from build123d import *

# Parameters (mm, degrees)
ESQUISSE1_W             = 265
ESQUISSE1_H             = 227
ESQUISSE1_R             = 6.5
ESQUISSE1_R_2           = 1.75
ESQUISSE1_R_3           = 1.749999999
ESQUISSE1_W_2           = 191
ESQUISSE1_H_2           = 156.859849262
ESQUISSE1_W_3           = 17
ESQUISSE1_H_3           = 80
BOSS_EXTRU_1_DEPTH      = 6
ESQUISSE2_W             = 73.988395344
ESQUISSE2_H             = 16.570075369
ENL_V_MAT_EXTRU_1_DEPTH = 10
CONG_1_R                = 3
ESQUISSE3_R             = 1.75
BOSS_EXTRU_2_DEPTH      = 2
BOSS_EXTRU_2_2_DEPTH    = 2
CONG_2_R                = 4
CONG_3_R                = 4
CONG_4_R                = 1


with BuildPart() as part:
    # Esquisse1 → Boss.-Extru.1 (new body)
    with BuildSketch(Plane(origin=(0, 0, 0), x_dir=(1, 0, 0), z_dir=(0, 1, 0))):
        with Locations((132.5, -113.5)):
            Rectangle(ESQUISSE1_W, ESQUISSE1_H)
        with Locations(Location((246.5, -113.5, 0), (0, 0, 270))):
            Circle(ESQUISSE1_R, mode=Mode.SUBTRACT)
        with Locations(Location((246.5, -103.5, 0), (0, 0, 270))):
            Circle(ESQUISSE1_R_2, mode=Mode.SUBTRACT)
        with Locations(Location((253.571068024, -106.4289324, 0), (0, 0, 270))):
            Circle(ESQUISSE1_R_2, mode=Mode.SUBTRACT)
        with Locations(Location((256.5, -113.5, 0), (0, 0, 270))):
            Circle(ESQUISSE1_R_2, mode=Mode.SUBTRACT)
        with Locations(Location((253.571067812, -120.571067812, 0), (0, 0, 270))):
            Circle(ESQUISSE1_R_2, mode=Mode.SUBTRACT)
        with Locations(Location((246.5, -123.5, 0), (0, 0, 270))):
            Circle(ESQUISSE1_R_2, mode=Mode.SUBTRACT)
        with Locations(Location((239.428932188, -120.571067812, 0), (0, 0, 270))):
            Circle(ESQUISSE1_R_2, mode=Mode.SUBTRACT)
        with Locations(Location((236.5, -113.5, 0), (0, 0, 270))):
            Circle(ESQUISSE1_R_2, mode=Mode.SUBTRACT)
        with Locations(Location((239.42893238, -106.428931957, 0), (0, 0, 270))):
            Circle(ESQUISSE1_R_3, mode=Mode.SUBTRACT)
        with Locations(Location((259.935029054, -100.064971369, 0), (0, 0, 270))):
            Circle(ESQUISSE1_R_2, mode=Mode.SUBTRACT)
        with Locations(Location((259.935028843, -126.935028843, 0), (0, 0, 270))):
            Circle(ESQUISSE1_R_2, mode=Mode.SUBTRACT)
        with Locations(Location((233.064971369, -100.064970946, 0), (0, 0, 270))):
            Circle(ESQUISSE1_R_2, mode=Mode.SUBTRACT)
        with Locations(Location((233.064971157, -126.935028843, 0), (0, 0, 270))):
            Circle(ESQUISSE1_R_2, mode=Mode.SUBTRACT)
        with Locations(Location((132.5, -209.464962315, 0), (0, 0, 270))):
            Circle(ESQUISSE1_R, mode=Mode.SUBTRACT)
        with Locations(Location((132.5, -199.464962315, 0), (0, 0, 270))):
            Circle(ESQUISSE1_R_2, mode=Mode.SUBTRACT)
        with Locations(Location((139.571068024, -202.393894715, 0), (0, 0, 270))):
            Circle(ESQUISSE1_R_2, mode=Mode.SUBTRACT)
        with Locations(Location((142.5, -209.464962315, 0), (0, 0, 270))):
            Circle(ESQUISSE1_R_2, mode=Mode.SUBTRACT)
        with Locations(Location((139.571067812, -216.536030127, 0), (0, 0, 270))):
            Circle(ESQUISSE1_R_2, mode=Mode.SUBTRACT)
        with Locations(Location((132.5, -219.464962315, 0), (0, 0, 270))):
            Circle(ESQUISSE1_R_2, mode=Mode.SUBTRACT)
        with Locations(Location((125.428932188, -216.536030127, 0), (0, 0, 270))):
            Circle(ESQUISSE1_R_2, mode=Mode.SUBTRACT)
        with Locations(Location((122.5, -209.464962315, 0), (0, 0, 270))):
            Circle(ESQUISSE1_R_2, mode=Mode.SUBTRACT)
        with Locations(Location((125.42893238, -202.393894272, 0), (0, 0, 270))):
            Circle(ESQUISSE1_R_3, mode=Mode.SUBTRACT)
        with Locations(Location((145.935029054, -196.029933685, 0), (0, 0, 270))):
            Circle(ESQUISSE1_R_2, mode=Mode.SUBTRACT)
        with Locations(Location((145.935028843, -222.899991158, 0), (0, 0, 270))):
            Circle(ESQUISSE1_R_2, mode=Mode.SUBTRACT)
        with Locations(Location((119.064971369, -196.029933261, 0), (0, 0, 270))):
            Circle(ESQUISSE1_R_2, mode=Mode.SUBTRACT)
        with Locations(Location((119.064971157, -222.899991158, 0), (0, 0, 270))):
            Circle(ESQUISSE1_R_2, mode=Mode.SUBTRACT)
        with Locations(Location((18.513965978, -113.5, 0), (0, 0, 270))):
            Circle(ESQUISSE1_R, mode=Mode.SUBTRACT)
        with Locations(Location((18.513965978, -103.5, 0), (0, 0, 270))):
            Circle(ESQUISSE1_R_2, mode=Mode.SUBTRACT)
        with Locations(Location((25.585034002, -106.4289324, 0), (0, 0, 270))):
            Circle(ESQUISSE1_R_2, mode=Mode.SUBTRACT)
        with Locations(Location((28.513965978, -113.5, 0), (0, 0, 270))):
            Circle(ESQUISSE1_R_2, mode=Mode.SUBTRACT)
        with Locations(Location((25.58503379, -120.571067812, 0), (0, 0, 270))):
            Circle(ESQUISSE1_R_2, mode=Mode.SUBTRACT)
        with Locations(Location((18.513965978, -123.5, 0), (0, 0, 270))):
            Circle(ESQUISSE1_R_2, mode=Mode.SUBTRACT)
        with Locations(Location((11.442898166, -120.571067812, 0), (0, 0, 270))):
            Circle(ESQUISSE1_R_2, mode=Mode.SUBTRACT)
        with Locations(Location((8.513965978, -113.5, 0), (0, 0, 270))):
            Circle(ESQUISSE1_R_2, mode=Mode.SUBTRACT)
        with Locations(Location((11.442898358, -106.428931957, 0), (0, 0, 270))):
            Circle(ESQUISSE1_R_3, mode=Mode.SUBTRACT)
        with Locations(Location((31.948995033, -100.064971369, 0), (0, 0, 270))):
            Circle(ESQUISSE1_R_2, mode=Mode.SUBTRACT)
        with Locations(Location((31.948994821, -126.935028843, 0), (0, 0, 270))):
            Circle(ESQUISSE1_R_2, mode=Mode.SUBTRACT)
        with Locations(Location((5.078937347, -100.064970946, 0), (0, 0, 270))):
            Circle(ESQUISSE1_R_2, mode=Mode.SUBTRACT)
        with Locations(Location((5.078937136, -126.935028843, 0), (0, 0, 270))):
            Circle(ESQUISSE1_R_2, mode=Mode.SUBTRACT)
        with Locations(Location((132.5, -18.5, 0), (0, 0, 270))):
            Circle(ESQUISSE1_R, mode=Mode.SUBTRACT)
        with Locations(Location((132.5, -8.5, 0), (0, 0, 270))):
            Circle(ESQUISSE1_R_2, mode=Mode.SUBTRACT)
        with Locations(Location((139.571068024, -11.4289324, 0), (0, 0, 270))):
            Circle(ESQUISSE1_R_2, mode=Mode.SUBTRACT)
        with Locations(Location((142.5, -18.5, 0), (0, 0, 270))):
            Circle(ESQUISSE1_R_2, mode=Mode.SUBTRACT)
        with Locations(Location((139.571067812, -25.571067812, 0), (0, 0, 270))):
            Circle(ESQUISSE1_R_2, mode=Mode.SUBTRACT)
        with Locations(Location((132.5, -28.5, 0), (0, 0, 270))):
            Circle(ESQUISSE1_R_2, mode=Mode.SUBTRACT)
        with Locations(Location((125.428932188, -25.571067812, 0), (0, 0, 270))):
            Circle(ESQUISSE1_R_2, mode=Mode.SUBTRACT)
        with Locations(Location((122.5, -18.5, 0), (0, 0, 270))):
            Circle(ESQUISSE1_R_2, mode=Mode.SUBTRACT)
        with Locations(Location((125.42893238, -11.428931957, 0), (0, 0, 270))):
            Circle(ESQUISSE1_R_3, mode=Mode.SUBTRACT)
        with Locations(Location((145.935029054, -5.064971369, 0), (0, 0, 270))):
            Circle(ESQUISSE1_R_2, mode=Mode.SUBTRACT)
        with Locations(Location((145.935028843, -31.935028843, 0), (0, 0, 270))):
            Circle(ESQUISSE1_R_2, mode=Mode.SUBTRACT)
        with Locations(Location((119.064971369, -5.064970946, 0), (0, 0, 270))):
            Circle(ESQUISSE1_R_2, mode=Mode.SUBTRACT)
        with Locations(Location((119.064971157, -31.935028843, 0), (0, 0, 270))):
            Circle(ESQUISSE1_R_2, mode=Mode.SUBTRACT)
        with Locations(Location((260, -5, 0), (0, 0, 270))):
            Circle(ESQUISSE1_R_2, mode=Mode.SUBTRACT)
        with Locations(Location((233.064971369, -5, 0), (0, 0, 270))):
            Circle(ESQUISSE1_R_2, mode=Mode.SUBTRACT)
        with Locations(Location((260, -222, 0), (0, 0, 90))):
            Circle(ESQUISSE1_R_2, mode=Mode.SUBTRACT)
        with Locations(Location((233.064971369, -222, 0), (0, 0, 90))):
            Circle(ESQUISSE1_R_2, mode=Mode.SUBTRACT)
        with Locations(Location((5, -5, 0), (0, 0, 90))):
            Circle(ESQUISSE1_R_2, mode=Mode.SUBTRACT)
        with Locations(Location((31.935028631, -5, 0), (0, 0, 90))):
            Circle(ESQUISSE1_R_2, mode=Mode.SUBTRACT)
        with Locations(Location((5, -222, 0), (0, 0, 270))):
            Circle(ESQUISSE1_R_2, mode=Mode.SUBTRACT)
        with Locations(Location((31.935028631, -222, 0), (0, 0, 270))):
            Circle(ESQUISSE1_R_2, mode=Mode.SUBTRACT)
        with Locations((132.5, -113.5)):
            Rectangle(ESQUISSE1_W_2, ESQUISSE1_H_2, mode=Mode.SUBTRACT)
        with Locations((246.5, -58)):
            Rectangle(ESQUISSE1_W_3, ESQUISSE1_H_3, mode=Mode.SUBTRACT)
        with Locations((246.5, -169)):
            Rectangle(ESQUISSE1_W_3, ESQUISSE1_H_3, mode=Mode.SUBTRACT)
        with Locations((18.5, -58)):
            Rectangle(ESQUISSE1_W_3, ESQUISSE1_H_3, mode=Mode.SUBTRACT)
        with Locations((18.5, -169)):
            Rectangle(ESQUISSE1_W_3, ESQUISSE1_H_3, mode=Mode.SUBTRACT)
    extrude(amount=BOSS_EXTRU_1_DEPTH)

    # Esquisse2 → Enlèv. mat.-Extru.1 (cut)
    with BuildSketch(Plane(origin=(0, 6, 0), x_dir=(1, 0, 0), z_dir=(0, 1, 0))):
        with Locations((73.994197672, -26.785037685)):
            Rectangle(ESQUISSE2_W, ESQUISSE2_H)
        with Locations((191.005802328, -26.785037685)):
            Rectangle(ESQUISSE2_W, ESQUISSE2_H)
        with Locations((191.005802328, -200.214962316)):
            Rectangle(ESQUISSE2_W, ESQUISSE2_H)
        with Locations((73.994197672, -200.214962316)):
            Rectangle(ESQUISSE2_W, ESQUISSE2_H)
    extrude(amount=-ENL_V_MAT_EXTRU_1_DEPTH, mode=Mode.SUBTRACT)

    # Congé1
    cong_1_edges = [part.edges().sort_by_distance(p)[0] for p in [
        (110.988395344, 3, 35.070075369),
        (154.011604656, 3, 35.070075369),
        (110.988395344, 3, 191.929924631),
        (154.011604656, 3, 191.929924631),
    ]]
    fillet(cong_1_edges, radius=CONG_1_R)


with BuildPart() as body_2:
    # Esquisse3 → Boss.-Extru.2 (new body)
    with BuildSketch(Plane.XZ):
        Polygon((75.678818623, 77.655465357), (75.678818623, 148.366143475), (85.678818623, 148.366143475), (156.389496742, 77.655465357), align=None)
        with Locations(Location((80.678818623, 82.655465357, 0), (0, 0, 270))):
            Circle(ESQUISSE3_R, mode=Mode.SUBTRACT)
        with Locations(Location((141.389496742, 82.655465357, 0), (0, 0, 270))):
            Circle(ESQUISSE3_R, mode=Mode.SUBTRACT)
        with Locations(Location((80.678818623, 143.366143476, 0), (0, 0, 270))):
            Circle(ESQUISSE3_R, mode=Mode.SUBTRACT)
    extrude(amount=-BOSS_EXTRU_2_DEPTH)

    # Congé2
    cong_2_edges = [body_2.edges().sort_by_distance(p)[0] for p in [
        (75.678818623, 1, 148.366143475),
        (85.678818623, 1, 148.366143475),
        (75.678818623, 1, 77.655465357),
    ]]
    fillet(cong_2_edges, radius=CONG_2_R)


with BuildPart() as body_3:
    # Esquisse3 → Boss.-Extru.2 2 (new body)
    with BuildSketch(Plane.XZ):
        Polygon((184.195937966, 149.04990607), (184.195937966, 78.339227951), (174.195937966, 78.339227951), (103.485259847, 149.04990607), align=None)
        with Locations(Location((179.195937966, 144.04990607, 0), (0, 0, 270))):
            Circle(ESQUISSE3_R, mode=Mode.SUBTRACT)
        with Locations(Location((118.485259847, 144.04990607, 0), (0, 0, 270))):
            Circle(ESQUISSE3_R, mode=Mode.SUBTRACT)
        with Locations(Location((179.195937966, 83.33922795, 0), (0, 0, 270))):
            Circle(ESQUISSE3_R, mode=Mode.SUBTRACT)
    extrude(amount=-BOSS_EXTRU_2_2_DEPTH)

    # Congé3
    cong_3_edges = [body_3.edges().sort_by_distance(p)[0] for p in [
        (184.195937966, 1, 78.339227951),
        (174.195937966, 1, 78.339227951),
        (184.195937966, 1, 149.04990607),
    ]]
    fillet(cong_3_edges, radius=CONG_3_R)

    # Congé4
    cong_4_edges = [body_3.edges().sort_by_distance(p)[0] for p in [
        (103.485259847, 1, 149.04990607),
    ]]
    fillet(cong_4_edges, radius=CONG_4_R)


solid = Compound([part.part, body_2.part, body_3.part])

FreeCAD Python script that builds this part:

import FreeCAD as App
import Part
import Sketcher
Q = App.Units.Quantity


def edges_at(feature, points):
    """Names of the edges that pass closest to the given points."""
    edges = feature.Shape.Edges
    near = lambda p: min(range(len(edges)), key=lambda i: edges[i].distToShape(Part.Vertex(*p))[0])
    return sorted({f"Edge{near(p) + 1}" for p in points})

doc = App.newDocument("Part")
body = doc.addObject("PartDesign::Body", "Body")

sketch1 = body.newObject("Sketcher::SketchObject", "Sketch")
sketch1.AttachmentSupport = (doc.getObject("XZ_Plane"), [""])
sketch1.MapMode = "FlatFace"
sketch1.addGeometry(Part.LineSegment(App.Vector(0, 0, 0), App.Vector(0, 227, 0)), False)
sketch1.addGeometry(Part.LineSegment(App.Vector(0, 227, 0), App.Vector(265, 227, 0)), False)
sketch1.addGeometry(Part.LineSegment(App.Vector(265, 227, 0), App.Vector(265, 0, 0)), False)
sketch1.addGeometry(Part.LineSegment(App.Vector(265, 0, 0), App.Vector(0, 0, 0)), False)
sketch1.addGeometry(Part.Circle(App.Vector(5, 222, 0), App.Vector(0, 0, 1), 1.8), False)
sketch1.addGeometry(Part.Circle(App.Vector(31.9, 222, 0), App.Vector(0, 0, 1), 1.8), False)
sketch1.addGeometry(Part.Circle(App.Vector(119.1, 222.9, 0), App.Vector(0, 0, 1), 1.8), False)
sketch1.addGeometry(Part.Circle(App.Vector(125.4, 216.5, 0), App.Vector(0, 0, 1), 1.8), False)
sketch1.addGeometry(Part.Circle(App.Vector(122.5, 209.5, 0), App.Vector(0, 0, 1), 1.8), False)
sketch1.addGeometry(Part.Circle(App.Vector(125.4, 202.4, 0), App.Vector(0, 0, 1), 1.7), False)
sketch1.addGeometry(Part.Circle(App.Vector(119.1, 196, 0), App.Vector(0, 0, 1), 1.8), False)
sketch1.addGeometry(Part.LineSegment(App.Vector(27, 209, 0), App.Vector(10, 209, 0)), False)
sketch1.addGeometry(Part.LineSegment(App.Vector(10, 209, 0), App.Vector(10, 129, 0)), False)
sketch1.addGeometry(Part.LineSegment(App.Vector(10, 129, 0), App.Vector(27, 129, 0)), False)
sketch1.addGeometry(Part.LineSegment(App.Vector(27, 129, 0), App.Vector(27, 209, 0)), False)
sketch1.addGeometry(Part.Circle(App.Vector(5.1, 126.9, 0), App.Vector(0, 0, 1), 1.8), False)
sketch1.addGeometry(Part.Circle(App.Vector(18.5, 123.5, 0), App.Vector(0, 0, 1), 1.8), False)
sketch1.addGeometry(Part.Circle(App.Vector(11.4, 120.6, 0), App.Vector(0, 0, 1), 1.8), False)
sketch1.addGeometry(Part.Circle(App.Vector(31.9, 126.9, 0), App.Vector(0, 0, 1), 1.8), False)
sketch1.addGeometry(Part.Circle(App.Vector(25.6, 120.6, 0), App.Vector(0, 0, 1), 1.8), False)
sketch1.addGeometry(Part.Circle(App.Vector(132.5, 219.5, 0), App.Vector(0, 0, 1), 1.8), False)
sketch1.addGeometry(Part.Circle(App.Vector(145.9, 222.9, 0), App.Vector(0, 0, 1), 1.8), False)
sketch1.addGeometry(Part.Circle(App.Vector(139.6, 216.5, 0), App.Vector(0, 0, 1), 1.8), False)
sketch1.addGeometry(Part.Circle(App.Vector(132.5, 209.5, 0), App.Vector(0, 0, 1), 6.5), False)
sketch1.addGeometry(Part.Circle(App.Vector(142.5, 209.5, 0), App.Vector(0, 0, 1), 1.8), False)
sketch1.addGeometry(Part.Circle(App.Vector(139.6, 202.4, 0), App.Vector(0, 0, 1), 1.8), False)
sketch1.addGeometry(Part.Circle(App.Vector(132.5, 199.5, 0), App.Vector(0, 0, 1), 1.8), False)
sketch1.addGeometry(Part.Circle(App.Vector(145.9, 196, 0), App.Vector(0, 0, 1), 1.8), False)
sketch1.addGeometry(Part.Circle(App.Vector(233.1, 222, 0), App.Vector(0, 0, 1), 1.8), False)
sketch1.addGeometry(Part.Circle(App.Vector(260, 222, 0), App.Vector(0, 0, 1), 1.8), False)
sketch1.addGeometry(Part.LineSegment(App.Vector(255, 209, 0), App.Vector(238, 209, 0)), False)
sketch1.addGeometry(Part.LineSegment(App.Vector(238, 209, 0), App.Vector(238, 129, 0)), False)
sketch1.addGeometry(Part.LineSegment(App.Vector(238, 129, 0), App.Vector(255, 129, 0)), False)
sketch1.addGeometry(Part.LineSegment(App.Vector(255, 129, 0), App.Vector(255, 209, 0)), False)
sketch1.addGeometry(Part.Circle(App.Vector(233.1, 126.9, 0), App.Vector(0, 0, 1), 1.8), False)
sketch1.addGeometry(Part.Circle(App.Vector(239.4, 120.6, 0), App.Vector(0, 0, 1), 1.8), False)
sketch1.addGeometry(Part.Circle(App.Vector(246.5, 123.5, 0), App.Vector(0, 0, 1), 1.8), False)
sketch1.addGeometry(Part.Circle(App.Vector(259.9, 126.9, 0), App.Vector(0, 0, 1), 1.8), False)
sketch1.addGeometry(Part.Circle(App.Vector(253.6, 120.6, 0), App.Vector(0, 0, 1), 1.8), False)
sketch1.addGeometry(Part.Circle(App.Vector(8.5, 113.5, 0), App.Vector(0, 0, 1), 1.8), False)
sketch1.addGeometry(Part.Circle(App.Vector(18.5, 113.5, 0), App.Vector(0, 0, 1), 6.5), False)
sketch1.addGeometry(Part.Circle(App.Vector(11.4, 106.4, 0), App.Vector(0, 0, 1), 1.7), False)
sketch1.addGeometry(Part.Circle(App.Vector(18.5, 103.5, 0), App.Vector(0, 0, 1), 1.8), False)
sketch1.addGeometry(Part.Circle(App.Vector(28.5, 113.5, 0), App.Vector(0, 0, 1), 1.8), False)
sketch1.addGeometry(Part.Circle(App.Vector(25.6, 106.4, 0), App.Vector(0, 0, 1), 1.8), False)
sketch1.addGeometry(Part.Circle(App.Vector(5.1, 100.1, 0), App.Vector(0, 0, 1), 1.8), False)
sketch1.addGeometry(Part.Circle(App.Vector(31.9, 100.1, 0), App.Vector(0, 0, 1), 1.8), False)
sketch1.addGeometry(Part.LineSegment(App.Vector(27, 98, 0), App.Vector(10, 98, 0)), False)
sketch1.addGeometry(Part.LineSegment(App.Vector(10, 98, 0), App.Vector(10, 18, 0)), False)
sketch1.addGeometry(Part.LineSegment(App.Vector(10, 18, 0), App.Vector(27, 18, 0)), False)
sketch1.addGeometry(Part.LineSegment(App.Vector(27, 18, 0), App.Vector(27, 98, 0)), False)
sketch1.addGeometry(Part.Circle(App.Vector(5, 5, 0), App.Vector(0, 0, 1), 1.8), False)
sketch1.addGeometry(Part.Circle(App.Vector(31.9, 5, 0), App.Vector(0, 0, 1), 1.8), False)
sketch1.addGeometry(Part.Circle(App.Vector(119.1, 31.9, 0), App.Vector(0, 0, 1), 1.8), False)
sketch1.addGeometry(Part.Circle(App.Vector(125.4, 25.6, 0), App.Vector(0, 0, 1), 1.8), False)
sketch1.addGeometry(Part.Circle(App.Vector(122.5, 18.5, 0), App.Vector(0, 0, 1), 1.8), False)
sketch1.addGeometry(Part.Circle(App.Vector(125.4, 11.4, 0), App.Vector(0, 0, 1), 1.7), False)
sketch1.addGeometry(Part.Circle(App.Vector(119.1, 5.1, 0), App.Vector(0, 0, 1), 1.8), False)
sketch1.addGeometry(Part.LineSegment(App.Vector(228, 191.9, 0), App.Vector(37, 191.9, 0)), False)
sketch1.addGeometry(Part.LineSegment(App.Vector(37, 191.9, 0), App.Vector(37, 35.1, 0)), False)
sketch1.addGeometry(Part.LineSegment(App.Vector(37, 35.1, 0), App.Vector(228, 35.1, 0)), False)
sketch1.addGeometry(Part.LineSegment(App.Vector(228, 35.1, 0), App.Vector(228, 191.9, 0)), False)
sketch1.addGeometry(Part.Circle(App.Vector(236.5, 113.5, 0), App.Vector(0, 0, 1), 1.8), False)
sketch1.addGeometry(Part.Circle(App.Vector(239.4, 106.4, 0), App.Vector(0, 0, 1), 1.7), False)
sketch1.addGeometry(Part.Circle(App.Vector(246.5, 113.5, 0), App.Vector(0, 0, 1), 6.5), False)
sketch1.addGeometry(Part.Circle(App.Vector(256.5, 113.5, 0), App.Vector(0, 0, 1), 1.8), False)
sketch1.addGeometry(Part.Circle(App.Vector(253.6, 106.4, 0), App.Vector(0, 0, 1), 1.8), False)
sketch1.addGeometry(Part.Circle(App.Vector(246.5, 103.5, 0), App.Vector(0, 0, 1), 1.8), False)
sketch1.addGeometry(Part.Circle(App.Vector(233.1, 100.1, 0), App.Vector(0, 0, 1), 1.8), False)
sketch1.addGeometry(Part.Circle(App.Vector(259.9, 100.1, 0), App.Vector(0, 0, 1), 1.8), False)
sketch1.addGeometry(Part.Circle(App.Vector(145.9, 31.9, 0), App.Vector(0, 0, 1), 1.8), False)
sketch1.addGeometry(Part.Circle(App.Vector(132.5, 28.5, 0), App.Vector(0, 0, 1), 1.8), False)
sketch1.addGeometry(Part.Circle(App.Vector(139.6, 25.6, 0), App.Vector(0, 0, 1), 1.8), False)
sketch1.addGeometry(Part.Circle(App.Vector(132.5, 18.5, 0), App.Vector(0, 0, 1), 6.5), False)
sketch1.addGeometry(Part.Circle(App.Vector(142.5, 18.5, 0), App.Vector(0, 0, 1), 1.8), False)
sketch1.addGeometry(Part.Circle(App.Vector(139.6, 11.4, 0), App.Vector(0, 0, 1), 1.8), False)
sketch1.addGeometry(Part.Circle(App.Vector(132.5, 8.5, 0), App.Vector(0, 0, 1), 1.8), False)
sketch1.addGeometry(Part.Circle(App.Vector(145.9, 5.1, 0), App.Vector(0, 0, 1), 1.8), False)
sketch1.addGeometry(Part.LineSegment(App.Vector(255, 98, 0), App.Vector(238, 98, 0)), False)
sketch1.addGeometry(Part.LineSegment(App.Vector(238, 98, 0), App.Vector(238, 18, 0)), False)
sketch1.addGeometry(Part.LineSegment(App.Vector(238, 18, 0), App.Vector(255, 18, 0)), False)
sketch1.addGeometry(Part.LineSegment(App.Vector(255, 18, 0), App.Vector(255, 98, 0)), False)
sketch1.addGeometry(Part.Circle(App.Vector(233.1, 5, 0), App.Vector(0, 0, 1), 1.8), False)
sketch1.addGeometry(Part.Circle(App.Vector(260, 5, 0), App.Vector(0, 0, 1), 1.8), False)
sketch1.addConstraint(Sketcher.Constraint("Coincident", 0, 2, 1, 1))
sketch1.addConstraint(Sketcher.Constraint("Coincident", 1, 2, 2, 1))
sketch1.addConstraint(Sketcher.Constraint("Coincident", 2, 2, 3, 1))
sketch1.addConstraint(Sketcher.Constraint("Coincident", 3, 2, 0, 1))
sketch1.addConstraint(Sketcher.Constraint("Coincident", 11, 2, 12, 1))
sketch1.addConstraint(Sketcher.Constraint("Coincident", 12, 2, 13, 1))
sketch1.addConstraint(Sketcher.Constraint("Coincident", 13, 2, 14, 1))
sketch1.addConstraint(Sketcher.Constraint("Coincident", 14, 2, 11, 1))
sketch1.addConstraint(Sketcher.Constraint("Coincident", 30, 2, 31, 1))
sketch1.addConstraint(Sketcher.Constraint("Coincident", 31, 2, 32, 1))
sketch1.addConstraint(Sketcher.Constraint("Coincident", 32, 2, 33, 1))
sketch1.addConstraint(Sketcher.Constraint("Coincident", 33, 2, 30, 1))
sketch1.addConstraint(Sketcher.Constraint("Coincident", 47, 2, 48, 1))
sketch1.addConstraint(Sketcher.Constraint("Coincident", 48, 2, 49, 1))
sketch1.addConstraint(Sketcher.Constraint("Coincident", 49, 2, 50, 1))
sketch1.addConstraint(Sketcher.Constraint("Coincident", 50, 2, 47, 1))
sketch1.addConstraint(Sketcher.Constraint("Coincident", 58, 2, 59, 1))
sketch1.addConstraint(Sketcher.Constraint("Coincident", 59, 2, 60, 1))
sketch1.addConstraint(Sketcher.Constraint("Coincident", 60, 2, 61, 1))
sketch1.addConstraint(Sketcher.Constraint("Coincident", 61, 2, 58, 1))
sketch1.addConstraint(Sketcher.Constraint("Coincident", 78, 2, 79, 1))
sketch1.addConstraint(Sketcher.Constraint("Coincident", 79, 2, 80, 1))
sketch1.addConstraint(Sketcher.Constraint("Coincident", 80, 2, 81, 1))
sketch1.addConstraint(Sketcher.Constraint("Coincident", 81, 2, 78, 1))
sketch1.addConstraint(Sketcher.Constraint("Vertical", 0))
sketch1.addConstraint(Sketcher.Constraint("Horizontal", 1))
sketch1.addConstraint(Sketcher.Constraint("Vertical", 2))
sketch1.addConstraint(Sketcher.Constraint("Horizontal", 3))
sketch1.addConstraint(Sketcher.Constraint("Horizontal", 11))
sketch1.addConstraint(Sketcher.Constraint("Vertical", 12))
sketch1.addConstraint(Sketcher.Constraint("Horizontal", 13))
sketch1.addConstraint(Sketcher.Constraint("Vertical", 14))
sketch1.addConstraint(Sketcher.Constraint("Horizontal", 30))
sketch1.addConstraint(Sketcher.Constraint("Vertical", 31))
sketch1.addConstraint(Sketcher.Constraint("Horizontal", 32))
sketch1.addConstraint(Sketcher.Constraint("Vertical", 33))
sketch1.addConstraint(Sketcher.Constraint("Horizontal", 47))
sketch1.addConstraint(Sketcher.Constraint("Vertical", 48))
sketch1.addConstraint(Sketcher.Constraint("Horizontal", 49))
sketch1.addConstraint(Sketcher.Constraint("Vertical", 50))
sketch1.addConstraint(Sketcher.Constraint("Horizontal", 58))
sketch1.addConstraint(Sketcher.Constraint("Vertical", 59))
sketch1.addConstraint(Sketcher.Constraint("Horizontal", 60))
sketch1.addConstraint(Sketcher.Constraint("Vertical", 61))
sketch1.addConstraint(Sketcher.Constraint("Horizontal", 78))
sketch1.addConstraint(Sketcher.Constraint("Vertical", 79))
sketch1.addConstraint(Sketcher.Constraint("Horizontal", 80))
sketch1.addConstraint(Sketcher.Constraint("Vertical", 81))
sketch1.addConstraint(Sketcher.Constraint("Coincident", 3, 2, -1, 1))
sketch1.addConstraint(Sketcher.Constraint("Equal", 4, 5))
sketch1.addConstraint(Sketcher.Constraint("Equal", 5, 6))
sketch1.addConstraint(Sketcher.Constraint("Equal", 6, 7))
sketch1.addConstraint(Sketcher.Constraint("Equal", 7, 8))
sketch1.addConstraint(Sketcher.Constraint("Equal", 8, 9))
sketch1.addConstraint(Sketcher.Constraint("Equal", 9, 10))
sketch1.addConstraint(Sketcher.Constraint("Equal", 10, 15))
sketch1.addConstraint(Sketcher.Constraint("Equal", 15, 16))
sketch1.addConstraint(Sketcher.Constraint("Equal", 16, 17))
sketch1.addConstraint(Sketcher.Constraint("Equal", 17, 18))
sketch1.addConstraint(Sketcher.Constraint("Equal", 18, 19))
sketch1.addConstraint(Sketcher.Constraint("Equal", 19, 20))
sketch1.addConstraint(Sketcher.Constraint("Equal", 20, 21))
sketch1.addConstraint(Sketcher.Constraint("Equal", 21, 22))
sketch1.addConstraint(Sketcher.Constraint("Equal", 22, 24))
sketch1.addConstraint(Sketcher.Constraint("Equal", 24, 25))
sketch1.addConstraint(Sketcher.Constraint("Equal", 25, 26))
sketch1.addConstraint(Sketcher.Constraint("Equal", 26, 27))
sketch1.addConstraint(Sketcher.Constraint("Equal", 27, 28))
sketch1.addConstraint(Sketcher.Constraint("Equal", 28, 29))
sketch1.addConstraint(Sketcher.Constraint("Equal", 29, 34))
sketch1.addConstraint(Sketcher.Constraint("Equal", 34, 35))
sketch1.addConstraint(Sketcher.Constraint("Equal", 35, 36))
sketch1.addConstraint(Sketcher.Constraint("Equal", 36, 37))
sketch1.addConstraint(Sketcher.Constraint("Equal", 37, 38))
sketch1.addConstraint(Sketcher.Constraint("Equal", 38, 39))
sketch1.addConstraint(Sketcher.Constraint("Equal", 23, 40))
sketch1.addConstraint(Sketcher.Constraint("Equal", 39, 41))
sketch1.addConstraint(Sketcher.Constraint("Equal", 41, 42))
sketch1.addConstraint(Sketcher.Constraint("Equal", 42, 43))
sketch1.addConstraint(Sketcher.Constraint("Equal", 43, 44))
sketch1.addConstraint(Sketcher.Constraint("Equal", 44, 45))
sketch1.addConstraint(Sketcher.Constraint("Equal", 45, 46))
sketch1.addConstraint(Sketcher.Constraint("Equal", 46, 51))
sketch1.addConstraint(Sketcher.Constraint("Equal", 51, 52))
sketch1.addConstraint(Sketcher.Constraint("Equal", 52, 53))
sketch1.addConstraint(Sketcher.Constraint("Equal", 53, 54))
sketch1.addConstraint(Sketcher.Constraint("Equal", 54, 55))
sketch1.addConstraint(Sketcher.Constraint("Equal", 55, 56))
sketch1.addConstraint(Sketcher.Constraint("Equal", 56, 57))
sketch1.addConstraint(Sketcher.Constraint("Equal", 57, 62))
sketch1.addConstraint(Sketcher.Constraint("Equal", 62, 63))
sketch1.addConstraint(Sketcher.Constraint("Equal", 40, 64))
sketch1.addConstraint(Sketcher.Constraint("Equal", 63, 65))
sketch1.addConstraint(Sketcher.Constraint("Equal", 65, 66))
sketch1.addConstraint(Sketcher.Constraint("Equal", 66, 67))
sketch1.addConstraint(Sketcher.Constraint("Equal", 67, 68))
sketch1.addConstraint(Sketcher.Constraint("Equal", 68, 69))
sketch1.addConstraint(Sketcher.Constraint("Equal", 69, 70))
sketch1.addConstraint(Sketcher.Constraint("Equal", 70, 71))
sketch1.addConstraint(Sketcher.Constraint("Equal", 71, 72))
sketch1.addConstraint(Sketcher.Constraint("Equal", 64, 73))
sketch1.addConstraint(Sketcher.Constraint("Equal", 72, 74))
sketch1.addConstraint(Sketcher.Constraint("Equal", 74, 75))
sketch1.addConstraint(Sketcher.Constraint("Equal", 75, 76))
sketch1.addConstraint(Sketcher.Constraint("Equal", 76, 77))
sketch1.addConstraint(Sketcher.Constraint("Equal", 77, 82))
sketch1.addConstraint(Sketcher.Constraint("Equal", 82, 83))
sketch1.addConstraint(Sketcher.Constraint("Horizontal", 4, 3, 5, 3))
sketch1.addConstraint(Sketcher.Constraint("Horizontal", 15, 3, 18, 3))
sketch1.addConstraint(Sketcher.Constraint("Horizontal", 17, 3, 19, 3))
sketch1.addConstraint(Sketcher.Constraint("Horizontal", 6, 3, 21, 3))
sketch1.addConstraint(Sketcher.Constraint("Horizontal", 7, 3, 22, 3))
sketch1.addConstraint(Sketcher.Constraint("Horizontal", 8, 3, 23, 3))
sketch1.addConstraint(Sketcher.Constraint("Horizontal", 23, 3, 24, 3))
sketch1.addConstraint(Sketcher.Constraint("Horizontal", 9, 3, 25, 3))
sketch1.addConstraint(Sketcher.Constraint("Horizontal", 10, 3, 27, 3))
sketch1.addConstraint(Sketcher.Constraint("Horizontal", 5, 3, 28, 3))
sketch1.addConstraint(Sketcher.Constraint("Horizontal", 28, 3, 29, 3))
sketch1.addConstraint(Sketcher.Constraint("Horizontal", 18, 3, 34, 3))
sketch1.addConstraint(Sketcher.Constraint("Horizontal", 19, 3, 35, 3))
sketch1.addConstraint(Sketcher.Constraint("Horizontal", 16, 3, 36, 3))
sketch1.addConstraint(Sketcher.Constraint("Horizontal", 34, 3, 37, 3))
sketch1.addConstraint(Sketcher.Constraint("Horizontal", 35, 3, 38, 3))
sketch1.addConstraint(Sketcher.Constraint("Horizontal", 39, 3, 40, 3))
sketch1.addConstraint(Sketcher.Constraint("Horizontal", 40, 3, 43, 3))
sketch1.addConstraint(Sketcher.Constraint("Horizontal", 41, 3, 44, 3))
sketch1.addConstraint(Sketcher.Constraint("Horizontal", 45, 3, 46, 3))
sketch1.addConstraint(Sketcher.Constraint("Horizontal", 51, 3, 52, 3))
sketch1.addConstraint(Sketcher.Constraint("Horizontal", 43, 3, 62, 3))
sketch1.addConstraint(Sketcher.Constraint("Horizontal", 44, 3, 63, 3))
sketch1.addConstraint(Sketcher.Constraint("Horizontal", 62, 3, 64, 3))
sketch1.addConstraint(Sketcher.Constraint("Horizontal", 64, 3, 65, 3))
sketch1.addConstraint(Sketcher.Constraint("Horizontal", 63, 3, 66, 3))
sketch1.addConstraint(Sketcher.Constraint("Horizontal", 42, 3, 67, 3))
sketch1.addConstraint(Sketcher.Constraint("Horizontal", 46, 3, 68, 3))
sketch1.addConstraint(Sketcher.Constraint("Horizontal", 68, 3, 69, 3))
sketch1.addConstraint(Sketcher.Constraint("Horizontal", 53, 3, 70, 3))
sketch1.addConstraint(Sketcher.Constraint("Horizontal", 54, 3, 72, 3))
sketch1.addConstraint(Sketcher.Constraint("Horizontal", 55, 3, 73, 3))
sketch1.addConstraint(Sketcher.Constraint("Horizontal", 73, 3, 74, 3))
sketch1.addConstraint(Sketcher.Constraint("Horizontal", 56, 3, 75, 3))
sketch1.addConstraint(Sketcher.Constraint("Horizontal", 57, 3, 77, 3))
sketch1.addConstraint(Sketcher.Constraint("Horizontal", 52, 3, 82, 3))
sketch1.addConstraint(Sketcher.Constraint("Horizontal", 82, 3, 83, 3))
sketch1.addConstraint(Sketcher.Constraint("Horizontal", 14, 2, 30, 2))
sketch1.addConstraint(Sketcher.Constraint("Horizontal", 13, 2, 31, 2))
sketch1.addConstraint(Sketcher.Constraint("Horizontal", 50, 2, 78, 2))
sketch1.addConstraint(Sketcher.Constraint("Horizontal", 49, 2, 79, 2))
sketch1.addConstraint(Sketcher.Constraint("Vertical", 7, 3, 9, 3))
sketch1.addConstraint(Sketcher.Constraint("Vertical", 6, 3, 10, 3))
sketch1.addConstraint(Sketcher.Constraint("Vertical", 20, 3, 23, 3))
sketch1.addConstraint(Sketcher.Constraint("Vertical", 22, 3, 25, 3))
sketch1.addConstraint(Sketcher.Constraint("Vertical", 23, 3, 26, 3))
sketch1.addConstraint(Sketcher.Constraint("Vertical", 21, 3, 27, 3))
sketch1.addConstraint(Sketcher.Constraint("Vertical", 28, 3, 34, 3))
sketch1.addConstraint(Sketcher.Constraint("Vertical", 16, 3, 40, 3))
sketch1.addConstraint(Sketcher.Constraint("Vertical", 17, 3, 41, 3))
sketch1.addConstraint(Sketcher.Constraint("Vertical", 40, 3, 42, 3))
sketch1.addConstraint(Sketcher.Constraint("Vertical", 19, 3, 44, 3))
sketch1.addConstraint(Sketcher.Constraint("Vertical", 15, 3, 45, 3))
sketch1.addConstraint(Sketcher.Constraint("Vertical", 18, 3, 46, 3))
sketch1.addConstraint(Sketcher.Constraint("Vertical", 4, 3, 51, 3))
sketch1.addConstraint(Sketcher.Constraint("Vertical", 5, 3, 52, 3))
sketch1.addConstraint(Sketcher.Constraint("Vertical", 10, 3, 53, 3))
sketch1.addConstraint(Sketcher.Constraint("Vertical", 9, 3, 54, 3))
sketch1.addConstraint(Sketcher.Constraint("Vertical", 8, 3, 55, 3))
sketch1.addConstraint(Sketcher.Constraint("Vertical", 54, 3, 56, 3))
sketch1.addConstraint(Sketcher.Constraint("Vertical", 53, 3, 57, 3))
sketch1.addConstraint(Sketcher.Constraint("Vertical", 35, 3, 63, 3))
sketch1.addConstraint(Sketcher.Constraint("Vertical", 36, 3, 64, 3))
sketch1.addConstraint(Sketcher.Constraint("Vertical", 38, 3, 66, 3))
sketch1.addConstraint(Sketcher.Constraint("Vertical", 64, 3, 67, 3))
sketch1.addConstraint(Sketcher.Constraint("Vertical", 34, 3, 68, 3))
sketch1.addConstraint(Sketcher.Constraint("Vertical", 37, 3, 69, 3))
sketch1.addConstraint(Sketcher.Constraint("Vertical", 27, 3, 70, 3))
sketch1.addConstraint(Sketcher.Constraint("Vertical", 26, 3, 71, 3))
sketch1.addConstraint(Sketcher.Constraint("Vertical", 25, 3, 72, 3))
sketch1.addConstraint(Sketcher.Constraint("Vertical", 71, 3, 73, 3))
sketch1.addConstraint(Sketcher.Constraint("Vertical", 24, 3, 74, 3))
sketch1.addConstraint(Sketcher.Constraint("Vertical", 72, 3, 75, 3))
sketch1.addConstraint(Sketcher.Constraint("Vertical", 73, 3, 76, 3))
sketch1.addConstraint(Sketcher.Constraint("Vertical", 70, 3, 77, 3))
sketch1.addConstraint(Sketcher.Constraint("Vertical", 68, 3, 82, 3))
sketch1.addConstraint(Sketcher.Constraint("Vertical", 29, 3, 83, 3))
sketch1.addConstraint(Sketcher.Constraint("Vertical", 12, 2, 47, 2))
sketch1.addConstraint(Sketcher.Constraint("Vertical", 14, 2, 49, 2))
sketch1.addConstraint(Sketcher.Constraint("Vertical", 31, 2, 78, 2))
sketch1.addConstraint(Sketcher.Constraint("Vertical", 33, 2, 80, 2))
sketch1.addConstraint(Sketcher.Constraint("Equal", 13, 30))
sketch1.addConstraint(Sketcher.Constraint("Equal", 33, 48))
sketch1.addConstraint(Sketcher.Constraint("Diameter", 23, 13.0))
sketch1.addConstraint(Sketcher.Constraint("Diameter", 4, 3.5))
sketch1.addConstraint(Sketcher.Constraint("DistanceX", 1, 1, 1, 2, 265.0))
sketch1.addConstraint(Sketcher.Constraint("DistanceX", 11, 2, 11, 1, 17.0))
sketch1.addConstraint(Sketcher.Constraint("DistanceX", 58, 2, 58, 1, 191.0))
sketch1.addConstraint(Sketcher.Constraint("DistanceY", 0, 1, 0, 2, 227.0))
sketch1.addConstraint(Sketcher.Constraint("DistanceY", 12, 2, 12, 1, 80.0))
sketch1.addConstraint(Sketcher.Constraint("DistanceX", -1, 1, 4, 3, 5.0))
sketch1.addConstraint(Sketcher.Constraint("DistanceY", -1, 1, 4, 3, 222.0))
sketch1.addConstraint(Sketcher.Constraint("DistanceX", -1, 1, 29, 3, 260.0))
sketch1.addConstraint(Sketcher.Constraint("DistanceY", -1, 1, 51, 3, 5.0))
sketch1.addConstraint(Sketcher.Constraint("DistanceX", -1, 1, 11, 2, 10.0))
sketch1.addConstraint(Sketcher.Constraint("DistanceY", -1, 1, 11, 2, 209.0))
sketch1.addConstraint(Sketcher.Constraint("DistanceX", -1, 1, 30, 2, 238.0))
sketch1.addConstraint(Sketcher.Constraint("DistanceY", -1, 1, 47, 2, 98.0))
sketch1.addConstraint(Sketcher.Constraint("DistanceX", -1, 1, 58, 2, 37.0))
sketch1.addConstraint(Sketcher.Constraint("DistanceX", -1, 1, 8, 3, 122.5))
sketch1.addConstraint(Sketcher.Constraint("DistanceY", -1, 1, 16, 3, 123.5))
sketch1.addConstraint(Sketcher.Constraint("DistanceX", -1, 1, 20, 3, 132.5))
sketch1.addConstraint(Sketcher.Constraint("DistanceX", -1, 1, 24, 3, 142.5))
sketch1.addConstraint(Sketcher.Constraint("DistanceX", -1, 1, 36, 3, 246.5))
sketch1.addConstraint(Sketcher.Constraint("DistanceY", -1, 1, 39, 3, 113.5))
sketch1.addConstraint(Sketcher.Constraint("DistanceY", -1, 1, 42, 3, 103.5))
sketch1.addConstraint(Sketcher.Constraint("DistanceY", -1, 1, 55, 3, 18.5))
sketch1.addConstraint(Sketcher.Constraint("DistanceX", -1, 1, 62, 3, 236.5))
sketch1.addConstraint(Sketcher.Constraint("DistanceX", -1, 1, 65, 3, 256.5))
sketch1.addConstraint(Sketcher.Constraint("DistanceY", -1, 1, 71, 3, 28.5))
sketch1.addConstraint(Sketcher.Constraint("DistanceY", -1, 1, 76, 3, 8.5))
sketch1.addConstraint(Sketcher.Constraint("DistanceY", 59, 2, 59, 1, 156.859849))
sketch1.addConstraint(Sketcher.Constraint("DistanceX", -1, 1, 17, 3, 11.442898))
sketch1.addConstraint(Sketcher.Constraint("DistanceX", -1, 1, 5, 3, 31.935029))
sketch1.addConstraint(Sketcher.Constraint("DistanceX", -1, 1, 6, 3, 119.064971))
sketch1.addConstraint(Sketcher.Constraint("DistanceY", -1, 1, 6, 3, 222.899991))
sketch1.addConstraint(Sketcher.Constraint("DistanceY", -1, 1, 7, 3, 216.53603))
sketch1.addConstraint(Sketcher.Constraint("DistanceY", -1, 1, 15, 3, 126.935029))
sketch1.addConstraint(Sketcher.Constraint("DistanceX", -1, 1, 21, 3, 145.935029))
sketch1.addConstraint(Sketcher.Constraint("DistanceX", -1, 1, 25, 3, 139.571068))
sketch1.addConstraint(Sketcher.Constraint("DistanceX", -1, 1, 28, 3, 233.064971))
sketch1.addConstraint(Sketcher.Constraint("DistanceX", -1, 1, 37, 3, 259.935029))
sketch1.addConstraint(Sketcher.Constraint("DistanceY", -1, 1, 41, 3, 106.428932))
sketch1.addConstraint(Sketcher.Constraint("DistanceY", -1, 1, 45, 3, 100.064971))
sketch1.addConstraint(Sketcher.Constraint("DistanceY", -1, 1, 53, 3, 31.935029))
sketch1.addConstraint(Sketcher.Constraint("DistanceY", -1, 1, 56, 3, 11.428932))
sketch1.addConstraint(Sketcher.Constraint("DistanceY", -1, 1, 57, 3, 5.064971))
sketch1.addConstraint(Sketcher.Constraint("DistanceX", -1, 1, 66, 3, 253.571068))
sketch1.addConstraint(Sketcher.Constraint("DistanceX", -1, 1, 7, 3, 125.428932))
sketch1.addConstraint(Sketcher.Constraint("DistanceY", -1, 1, 8, 3, 209.464962))
sketch1.addConstraint(Sketcher.Constraint("DistanceY", -1, 1, 9, 3, 202.393894))
sketch1.addConstraint(Sketcher.Constraint("DistanceY", -1, 1, 10, 3, 196.029933))
sketch1.addConstraint(Sketcher.Constraint("DistanceX", -1, 1, 15, 3, 5.078937))
sketch1.addConstraint(Sketcher.Constraint("DistanceX", -1, 1, 16, 3, 18.513966))
sketch1.addConstraint(Sketcher.Constraint("DistanceY", -1, 1, 17, 3, 120.571068))
sketch1.addConstraint(Sketcher.Constraint("DistanceX", -1, 1, 18, 3, 31.948995))
sketch1.addConstraint(Sketcher.Constraint("DistanceX", -1, 1, 19, 3, 25.585034))
sketch1.addConstraint(Sketcher.Constraint("DistanceY", -1, 1, 20, 3, 219.464962))
sketch1.addConstraint(Sketcher.Constraint("DistanceY", -1, 1, 26, 3, 199.464962))
sketch1.addConstraint(Sketcher.Constraint("DistanceX", -1, 1, 35, 3, 239.428932))
sketch1.addConstraint(Sketcher.Constraint("DistanceX", -1, 1, 39, 3, 8.513966))
sketch1.addConstraint(Sketcher.Constraint("DistanceX", -1, 1, 43, 3, 28.513966))
sketch1.addConstraint(Sketcher.Constraint("DistanceY", -1, 1, 54, 3, 25.571068))
sketch1.addConstraint(Sketcher.Constraint("DistanceY", -1, 1, 58, 2, 191.929925))
pad1 = body.newObject("PartDesign::Pad", "Pad")
pad1.Profile = sketch1
pad1.Length = 6
pad1.Reversed = True

sketch2 = body.newObject("Sketcher::SketchObject", "Sketch001")
sketch2.AttachmentSupport = (doc.getObject("XZ_Plane"), [""])
sketch2.MapMode = "FlatFace"
sketch2.AttachmentOffset = App.Placement(App.Vector(0, 0, -6), App.Rotation())
sketch2.addGeometry(Part.LineSegment(App.Vector(37, 18, 0), App.Vector(37, 35, 0)), False)
sketch2.addGeometry(Part.LineSegment(App.Vector(37, 35, 0), App.Vector(111, 35, 0)), False)
sketch2.addGeometry(Part.LineSegment(App.Vector(111, 35, 0), App.Vector(111, 18, 0)), False)
sketch2.addGeometry(Part.LineSegment(App.Vector(111, 18, 0), App.Vector(37, 18, 0)), False)
sketch2.addGeometry(Part.LineSegment(App.Vector(154, 18, 0), App.Vector(154, 35, 0)), False)
sketch2.addGeometry(Part.LineSegment(App.Vector(154, 35, 0), App.Vector(228, 35, 0)), False)
sketch2.addGeometry(Part.LineSegment(App.Vector(228, 35, 0), App.Vector(228, 18, 0)), False)
sketch2.addGeometry(Part.LineSegment(App.Vector(228, 18, 0), App.Vector(154, 18, 0)), False)
sketch2.addGeometry(Part.LineSegment(App.Vector(154, 192, 0), App.Vector(154, 208, 0)), False)
sketch2.addGeometry(Part.LineSegment(App.Vector(154, 208, 0), App.Vector(228, 208, 0)), False)
sketch2.addGeometry(Part.LineSegment(App.Vector(228, 208, 0), App.Vector(228, 192, 0)), False)
sketch2.addGeometry(Part.LineSegment(App.Vector(228, 192, 0), App.Vector(154, 192, 0)), False)
sketch2.addGeometry(Part.LineSegment(App.Vector(37, 192, 0), App.Vector(37, 208, 0)), False)
sketch2.addGeometry(Part.LineSegment(App.Vector(37, 208, 0), App.Vector(111, 208, 0)), False)
sketch2.addGeometry(Part.LineSegment(App.Vector(111, 208, 0), App.Vector(111, 192, 0)), False)
sketch2.addGeometry(Part.LineSegment(App.Vector(111, 192, 0), App.Vector(37, 192, 0)), False)
sketch2.addConstraint(Sketcher.Constraint("Coincident", 0, 2, 1, 1))
sketch2.addConstraint(Sketcher.Constraint("Coincident", 1, 2, 2, 1))
sketch2.addConstraint(Sketcher.Constraint("Coincident", 2, 2, 3, 1))
sketch2.addConstraint(Sketcher.Constraint("Coincident", 3, 2, 0, 1))
sketch2.addConstraint(Sketcher.Constraint("Coincident", 4, 2, 5, 1))
sketch2.addConstraint(Sketcher.Constraint("Coincident", 5, 2, 6, 1))
sketch2.addConstraint(Sketcher.Constraint("Coincident", 6, 2, 7, 1))
sketch2.addConstraint(Sketcher.Constraint("Coincident", 7, 2, 4, 1))
sketch2.addConstraint(Sketcher.Constraint("Coincident", 8, 2, 9, 1))
sketch2.addConstraint(Sketcher.Constraint("Coincident", 9, 2, 10, 1))
sketch2.addConstraint(Sketcher.Constraint("Coincident", 10, 2, 11, 1))
sketch2.addConstraint(Sketcher.Constraint("Coincident", 11, 2, 8, 1))
sketch2.addConstraint(Sketcher.Constraint("Coincident", 12, 2, 13, 1))
sketch2.addConstraint(Sketcher.Constraint("Coincident", 13, 2, 14, 1))
sketch2.addConstraint(Sketcher.Constraint("Coincident", 14, 2, 15, 1))
sketch2.addConstraint(Sketcher.Constraint("Coincident", 15, 2, 12, 1))
sketch2.addConstraint(Sketcher.Constraint("Vertical", 0))
sketch2.addConstraint(Sketcher.Constraint("Horizontal", 1))
sketch2.addConstraint(Sketcher.Constraint("Vertical", 2))
sketch2.addConstraint(Sketcher.Constraint("Horizontal", 3))
sketch2.addConstraint(Sketcher.Constraint("Vertical", 4))
sketch2.addConstraint(Sketcher.Constraint("Horizontal", 5))
sketch2.addConstraint(Sketcher.Constraint("Vertical", 6))
sketch2.addConstraint(Sketcher.Constraint("Horizontal", 7))
sketch2.addConstraint(Sketcher.Constraint("Vertical", 8))
sketch2.addConstraint(Sketcher.Constraint("Horizontal", 9))
sketch2.addConstraint(Sketcher.Constraint("Vertical", 10))
sketch2.addConstraint(Sketcher.Constraint("Horizontal", 11))
sketch2.addConstraint(Sketcher.Constraint("Vertical", 12))
sketch2.addConstraint(Sketcher.Constraint("Horizontal", 13))
sketch2.addConstraint(Sketcher.Constraint("Vertical", 14))
sketch2.addConstraint(Sketcher.Constraint("Horizontal", 15))
sketch2.addConstraint(Sketcher.Constraint("Horizontal", 1, 2, 4, 2))
sketch2.addConstraint(Sketcher.Constraint("Horizontal", 3, 2, 6, 2))
sketch2.addConstraint(Sketcher.Constraint("Horizontal", 9, 2, 12, 2))
sketch2.addConstraint(Sketcher.Constraint("Horizontal", 11, 2, 14, 2))
sketch2.addConstraint(Sketcher.Constraint("Vertical", 7, 2, 8, 2))
sketch2.addConstraint(Sketcher.Constraint("Vertical", 6, 2, 9, 2))
sketch2.addConstraint(Sketcher.Constraint("Vertical", 3, 2, 12, 2))
sketch2.addConstraint(Sketcher.Constraint("Vertical", 2, 2, 13, 2))
sketch2.addConstraint(Sketcher.Constraint("Equal", 3, 5))
sketch2.addConstraint(Sketcher.Constraint("Equal", 6, 8))
sketch2.addConstraint(Sketcher.Constraint("DistanceX", -1, 1, 0, 2, 37.0))
sketch2.addConstraint(Sketcher.Constraint("DistanceX", -1, 1, 5, 2, 228.0))
sketch2.addConstraint(Sketcher.Constraint("DistanceY", 7, 2, 8, 2, 190.0))
sketch2.addConstraint(Sketcher.Constraint("DistanceY", -1, 1, 2, 2, 18.5))
sketch2.addConstraint(Sketcher.Constraint("DistanceX", 1, 1, 1, 2, 73.988395))
sketch2.addConstraint(Sketcher.Constraint("DistanceY", 0, 1, 0, 2, 16.570075))
pocket1 = body.newObject("PartDesign::Pocket", "Pocket")
pocket1.Profile = sketch2
pocket1.Length = 10
pocket1.Reversed = True
doc.recompute()

fillet = body.newObject("PartDesign::Fillet", "Fillet")
fillet.Base = (pocket1, edges_at(pocket1, [
    (110.988, 3, 35.07),
    (154.012, 3, 35.07),
    (110.988, 3, 191.93),
    (154.012, 3, 191.93),
]))
fillet.Radius = 3
body2 = doc.addObject("PartDesign::Body", "Body001")

sketch3 = body2.newObject("Sketcher::SketchObject", "Sketch002")
sketch3.AttachmentSupport = (doc.getObject("XZ_Plane001"), [""])
sketch3.MapMode = "FlatFace"
sketch3.addGeometry(Part.LineSegment(App.Vector(75.7, 148.4, 0), App.Vector(75.7, 77.7, 0)), False)
sketch3.addGeometry(Part.LineSegment(App.Vector(75.7, 77.7, 0), App.Vector(156.4, 77.7, 0)), False)
sketch3.addGeometry(Part.LineSegment(App.Vector(156.4, 77.7, 0), App.Vector(85.7, 148.4, 0)), False)
sketch3.addGeometry(Part.LineSegment(App.Vector(85.7, 148.4, 0), App.Vector(75.7, 148.4, 0)), False)
sketch3.addGeometry(Part.Circle(App.Vector(141.4, 82.7, 0), App.Vector(0, 0, 1), 1.8), False)
sketch3.addGeometry(Part.Circle(App.Vector(80.7, 82.7, 0), App.Vector(0, 0, 1), 1.8), False)
sketch3.addGeometry(Part.Circle(App.Vector(80.7, 143.4, 0), App.Vector(0, 0, 1), 1.8), False)
sketch3.addConstraint(Sketcher.Constraint("Coincident", 0, 2, 1, 1))
sketch3.addConstraint(Sketcher.Constraint("Coincident", 1, 2, 2, 1))
sketch3.addConstraint(Sketcher.Constraint("Coincident", 2, 2, 3, 1))
sketch3.addConstraint(Sketcher.Constraint("Coincident", 3, 2, 0, 1))
sketch3.addConstraint(Sketcher.Constraint("Vertical", 0))
sketch3.addConstraint(Sketcher.Constraint("Horizontal", 1))
sketch3.addConstraint(Sketcher.Constraint("Horizontal", 3))
sketch3.addConstraint(Sketcher.Constraint("Equal", 4, 5))
sketch3.addConstraint(Sketcher.Constraint("Equal", 5, 6))
sketch3.addConstraint(Sketcher.Constraint("Horizontal", 4, 3, 5, 3))
sketch3.addConstraint(Sketcher.Constraint("Vertical", 5, 3, 6, 3))
sketch3.addConstraint(Sketcher.Constraint("Diameter", 4, 3.5))
sketch3.addConstraint(Sketcher.Constraint("DistanceX", 3, 2, 3, 1, 10.0))
sketch3.addConstraint(Sketcher.Constraint("Angle", 2, Q("135 deg")))
sketch3.addConstraint(Sketcher.Constraint("Distance", 2, 100.0))
sketch3.addConstraint(Sketcher.Constraint("DistanceX", 0, 2, 5, 3, 5.0))
sketch3.addConstraint(Sketcher.Constraint("DistanceY", 0, 2, 5, 3, 5.0))
sketch3.addConstraint(Sketcher.Constraint("DistanceX", 4, 3, 1, 2, 15.0))
sketch3.addConstraint(Sketcher.Constraint("DistanceY", 6, 3, 2, 2, 5.0))
sketch3.addConstraint(Sketcher.Constraint("DistanceX", -1, 1, 5, 3, 80.678819))
sketch3.addConstraint(Sketcher.Constraint("DistanceY", -1, 1, 4, 3, 82.655465))
pad2 = body2.newObject("PartDesign::Pad", "Pad001")
pad2.Profile = sketch3
pad2.Length = 2
pad2.Reversed = True
doc.recompute()

fillet2 = body2.newObject("PartDesign::Fillet", "Fillet001")
fillet2.Base = (pad2, edges_at(pad2, [(75.679, 1, 148.366), (85.679, 1, 148.366), (75.679, 1, 77.655)]))
fillet2.Radius = 4
body3 = doc.addObject("PartDesign::Body", "Body002")

sketch4 = body3.newObject("Sketcher::SketchObject", "Sketch003")
sketch4.AttachmentSupport = (doc.getObject("XZ_Plane002"), [""])
sketch4.MapMode = "FlatFace"
sketch4.addGeometry(Part.LineSegment(App.Vector(184.2, 78.3, 0), App.Vector(184.2, 149, 0)), False)
sketch4.addGeometry(Part.LineSegment(App.Vector(184.2, 149, 0), App.Vector(103.5, 149, 0)), False)
sketch4.addGeometry(Part.LineSegment(App.Vector(103.5, 149, 0), App.Vector(174.2, 78.3, 0)), False)
sketch4.addGeometry(Part.LineSegment(App.Vector(174.2, 78.3, 0), App.Vector(184.2, 78.3, 0)), False)
sketch4.addGeometry(Part.Circle(App.Vector(179.2, 83.3, 0), App.Vector(0, 0, 1), 1.8), False)
sketch4.addGeometry(Part.Circle(App.Vector(179.2, 144, 0), App.Vector(0, 0, 1), 1.8), False)
sketch4.addGeometry(Part.Circle(App.Vector(118.5, 144, 0), App.Vector(0, 0, 1), 1.8), False)
sketch4.addConstraint(Sketcher.Constraint("Coincident", 0, 2, 1, 1))
sketch4.addConstraint(Sketcher.Constraint("Coincident", 1, 2, 2, 1))
sketch4.addConstraint(Sketcher.Constraint("Coincident", 2, 2, 3, 1))
sketch4.addConstraint(Sketcher.Constraint("Coincident", 3, 2, 0, 1))
sketch4.addConstraint(Sketcher.Constraint("Vertical", 0))
sketch4.addConstraint(Sketcher.Constraint("Horizontal", 1))
sketch4.addConstraint(Sketcher.Constraint("Horizontal", 3))
sketch4.addConstraint(Sketcher.Constraint("Equal", 4, 5))
sketch4.addConstraint(Sketcher.Constraint("Equal", 5, 6))
sketch4.addConstraint(Sketcher.Constraint("Horizontal", 5, 3, 6, 3))
sketch4.addConstraint(Sketcher.Constraint("Vertical", 4, 3, 5, 3))
sketch4.addConstraint(Sketcher.Constraint("Diameter", 4, 3.5))
sketch4.addConstraint(Sketcher.Constraint("DistanceX", 3, 1, 3, 2, 10.0))
sketch4.addConstraint(Sketcher.Constraint("Angle", 2, Q("-45 deg")))
sketch4.addConstraint(Sketcher.Constraint("Distance", 2, 100.0))
sketch4.addConstraint(Sketcher.Constraint("DistanceX", 5, 3, 0, 2, 5.0))
sketch4.addConstraint(Sketcher.Constraint("DistanceY", 5, 3, 0, 2, 5.0))
sketch4.addConstraint(Sketcher.Constraint("DistanceX", 1, 2, 6, 3, 15.0))
sketch4.addConstraint(Sketcher.Constraint("DistanceY", 2, 2, 4, 3, 5.0))
sketch4.addConstraint(Sketcher.Constraint("DistanceX", -1, 1, 6, 3, 118.48526))
sketch4.addConstraint(Sketcher.Constraint("DistanceY", -1, 1, 4, 3, 83.339228))
pad3 = body3.newObject("PartDesign::Pad", "Pad002")
pad3.Profile = sketch4
pad3.Length = 2
pad3.Reversed = True
doc.recompute()

fillet3 = body3.newObject("PartDesign::Fillet", "Fillet002")
fillet3.Base = (pad3, edges_at(pad3, [(184.196, 1, 78.339), (174.196, 1, 78.339), (184.196, 1, 149.05)]))
fillet3.Radius = 4
doc.recompute()

fillet4 = body3.newObject("PartDesign::Fillet", "Fillet003")
fillet4.Base = (fillet3, edges_at(fillet3, [(103.485, 1, 149.05)]))
fillet4.Radius = 1

doc.recompute()
